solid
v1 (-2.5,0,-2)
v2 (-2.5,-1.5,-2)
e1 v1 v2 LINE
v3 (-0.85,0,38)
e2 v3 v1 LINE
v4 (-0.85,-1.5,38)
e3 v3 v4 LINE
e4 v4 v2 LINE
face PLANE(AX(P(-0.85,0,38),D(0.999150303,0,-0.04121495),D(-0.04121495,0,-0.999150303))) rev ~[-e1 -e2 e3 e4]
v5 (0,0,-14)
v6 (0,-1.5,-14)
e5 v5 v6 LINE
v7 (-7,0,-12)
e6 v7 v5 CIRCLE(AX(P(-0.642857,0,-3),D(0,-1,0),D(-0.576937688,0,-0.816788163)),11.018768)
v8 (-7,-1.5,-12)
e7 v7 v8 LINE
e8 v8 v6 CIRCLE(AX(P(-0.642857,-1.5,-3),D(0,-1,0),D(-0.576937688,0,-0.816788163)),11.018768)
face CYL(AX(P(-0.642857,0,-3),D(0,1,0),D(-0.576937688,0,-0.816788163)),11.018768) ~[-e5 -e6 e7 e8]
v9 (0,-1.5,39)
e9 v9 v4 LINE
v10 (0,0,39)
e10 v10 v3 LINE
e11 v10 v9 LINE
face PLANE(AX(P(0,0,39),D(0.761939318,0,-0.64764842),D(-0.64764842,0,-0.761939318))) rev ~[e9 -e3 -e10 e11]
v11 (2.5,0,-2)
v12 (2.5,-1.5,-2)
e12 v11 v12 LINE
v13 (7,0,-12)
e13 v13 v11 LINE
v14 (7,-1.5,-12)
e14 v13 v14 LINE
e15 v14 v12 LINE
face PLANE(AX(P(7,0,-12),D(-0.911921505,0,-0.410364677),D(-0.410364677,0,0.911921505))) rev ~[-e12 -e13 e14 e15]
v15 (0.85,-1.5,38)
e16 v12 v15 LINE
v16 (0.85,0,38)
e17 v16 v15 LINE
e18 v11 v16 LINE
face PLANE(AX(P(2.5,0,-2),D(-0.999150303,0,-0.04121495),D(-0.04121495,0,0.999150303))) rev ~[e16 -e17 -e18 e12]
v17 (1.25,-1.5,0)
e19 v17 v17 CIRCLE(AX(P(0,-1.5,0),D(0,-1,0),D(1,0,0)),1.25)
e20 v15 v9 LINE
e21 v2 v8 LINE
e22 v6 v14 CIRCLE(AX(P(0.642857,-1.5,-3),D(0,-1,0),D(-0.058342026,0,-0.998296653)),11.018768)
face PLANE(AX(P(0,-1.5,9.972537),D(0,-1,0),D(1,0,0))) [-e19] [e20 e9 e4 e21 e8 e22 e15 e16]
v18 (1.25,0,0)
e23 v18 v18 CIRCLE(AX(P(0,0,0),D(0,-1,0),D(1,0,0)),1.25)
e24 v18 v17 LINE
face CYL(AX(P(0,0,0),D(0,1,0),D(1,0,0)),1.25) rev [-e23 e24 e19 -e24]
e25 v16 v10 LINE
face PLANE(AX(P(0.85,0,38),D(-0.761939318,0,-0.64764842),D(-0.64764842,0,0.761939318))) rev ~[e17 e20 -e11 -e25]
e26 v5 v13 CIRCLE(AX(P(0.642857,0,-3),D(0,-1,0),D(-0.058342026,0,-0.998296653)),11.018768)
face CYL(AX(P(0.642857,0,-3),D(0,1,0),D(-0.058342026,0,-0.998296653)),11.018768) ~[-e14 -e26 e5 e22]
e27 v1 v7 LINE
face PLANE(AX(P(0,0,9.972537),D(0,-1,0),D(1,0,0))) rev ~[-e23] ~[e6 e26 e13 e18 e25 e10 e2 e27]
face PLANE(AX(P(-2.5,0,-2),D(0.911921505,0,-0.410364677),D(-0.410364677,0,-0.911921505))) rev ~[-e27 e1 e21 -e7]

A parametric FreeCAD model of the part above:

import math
import FreeCAD as App
import Part
import Sketcher
from FreeCAD import Vector

doc = App.newDocument("Part")
params = doc.addObject("Spreadsheet::Sheet", "Params")
for row, (alias, value) in enumerate([
    ("sketch1_diameter", "2.5 mm"),
    ("pad1_length", "1.5 mm"),
], start=1):
    params.set(f"A{row}", alias)
    params.set(f"B{row}", "=" + value)
    params.setAlias(f"B{row}", alias)

body = doc.addObject("PartDesign::Body", "Body")

# Sketch on XZ plane
sketch1 = body.newObject("Sketcher::SketchObject", "Sketch")
sketch1.AttachmentSupport = (doc.getObject("XZ_Plane"), [""])
sketch1.MapMode = "FlatFace"
sketch1.addGeometry([
    Part.LineSegment(Vector(0.8, 38, 0), Vector(0, 39, 0)),  # 0
    Part.LineSegment(Vector(0, 39, 0), Vector(-0.8, 38, 0)),  # 1
    Part.LineSegment(Vector(-0.8, 38, 0), Vector(-2.5, -2, 0)),  # 2
    Part.LineSegment(Vector(-2.5, -2, 0), Vector(-7, -12, 0)),  # 3
    Part.ArcOfCircle(Part.Circle(Vector(-0.6, -3, 0), Vector(0, 0, 1), 11), math.radians(-125), math.radians(-87)),  # 4
    Part.ArcOfCircle(Part.Circle(Vector(0.6, -3, 0), Vector(0, 0, 1), 11), math.radians(-93), math.radians(-55)),  # 5
    Part.LineSegment(Vector(7, -12, 0), Vector(2.5, -2, 0)),  # 6
    Part.LineSegment(Vector(2.5, -2, 0), Vector(0.8, 38, 0)),  # 7
    Part.Circle(Vector(0, 0, 0), Vector(0, 0, 1), 1.2),  # 8
], False)
sketch1.addConstraint([
    Sketcher.Constraint("Coincident", 0, 2, 1, 1),
    Sketcher.Constraint("Coincident", 1, 2, 2, 1),
    Sketcher.Constraint("Coincident", 2, 2, 3, 1),
    Sketcher.Constraint("Coincident", 3, 2, 4, 1),
    Sketcher.Constraint("Coincident", 4, 2, 5, 1),
    Sketcher.Constraint("Coincident", 5, 2, 6, 1),
    Sketcher.Constraint("Coincident", 6, 2, 7, 1),
    Sketcher.Constraint("Coincident", 7, 2, 0, 1),
    Sketcher.Constraint("Coincident", 8, 3, -1, 1),
    Sketcher.Constraint("Equal", 4, 5),
    Sketcher.Constraint("Symmetric", 4, 3, 5, 3, -2),
    Sketcher.Constraint("Symmetric", 2, 2, 6, 2, -2),
    Sketcher.Constraint("Symmetric", 1, 2, 7, 2, -2),
    Sketcher.Constraint("PointOnObject", 0, 2, -2),
    Sketcher.Constraint("Horizontal", 3, 2, 5, 2),
    Sketcher.Constraint("Diameter", 8, 2.5),
    Sketcher.Constraint("DistanceY", 4, 3, -1, 1, 3.0),
    Sketcher.Constraint("DistanceY", -1, 1, 0, 2, 39.0),
    Sketcher.Constraint("DistanceY", -1, 1, 1, 2, 38.0),
    Sketcher.Constraint("DistanceY", 2, 2, -1, 1, 2.0),
    Sketcher.Constraint("DistanceX", 3, 2, -1, 1, 7.0),
    Sketcher.Constraint("DistanceY", 3, 2, -1, 1, 12.0),
    Sketcher.Constraint("DistanceY", 4, 2, -1, 1, 14.0),
    Sketcher.Constraint("DistanceX", 2, 2, 6, 2, 5.0),
    Sketcher.Constraint("DistanceX", 1, 2, 7, 2, 1.7),
])
sketch1.setExpression("Constraints[15]", "Params.sketch1_diameter")
pad1 = body.newObject("PartDesign::Pad", "Pad")
pad1.Profile = sketch1
pad1.setExpression("Length", "Params.pad1_length")

doc.recompute()
